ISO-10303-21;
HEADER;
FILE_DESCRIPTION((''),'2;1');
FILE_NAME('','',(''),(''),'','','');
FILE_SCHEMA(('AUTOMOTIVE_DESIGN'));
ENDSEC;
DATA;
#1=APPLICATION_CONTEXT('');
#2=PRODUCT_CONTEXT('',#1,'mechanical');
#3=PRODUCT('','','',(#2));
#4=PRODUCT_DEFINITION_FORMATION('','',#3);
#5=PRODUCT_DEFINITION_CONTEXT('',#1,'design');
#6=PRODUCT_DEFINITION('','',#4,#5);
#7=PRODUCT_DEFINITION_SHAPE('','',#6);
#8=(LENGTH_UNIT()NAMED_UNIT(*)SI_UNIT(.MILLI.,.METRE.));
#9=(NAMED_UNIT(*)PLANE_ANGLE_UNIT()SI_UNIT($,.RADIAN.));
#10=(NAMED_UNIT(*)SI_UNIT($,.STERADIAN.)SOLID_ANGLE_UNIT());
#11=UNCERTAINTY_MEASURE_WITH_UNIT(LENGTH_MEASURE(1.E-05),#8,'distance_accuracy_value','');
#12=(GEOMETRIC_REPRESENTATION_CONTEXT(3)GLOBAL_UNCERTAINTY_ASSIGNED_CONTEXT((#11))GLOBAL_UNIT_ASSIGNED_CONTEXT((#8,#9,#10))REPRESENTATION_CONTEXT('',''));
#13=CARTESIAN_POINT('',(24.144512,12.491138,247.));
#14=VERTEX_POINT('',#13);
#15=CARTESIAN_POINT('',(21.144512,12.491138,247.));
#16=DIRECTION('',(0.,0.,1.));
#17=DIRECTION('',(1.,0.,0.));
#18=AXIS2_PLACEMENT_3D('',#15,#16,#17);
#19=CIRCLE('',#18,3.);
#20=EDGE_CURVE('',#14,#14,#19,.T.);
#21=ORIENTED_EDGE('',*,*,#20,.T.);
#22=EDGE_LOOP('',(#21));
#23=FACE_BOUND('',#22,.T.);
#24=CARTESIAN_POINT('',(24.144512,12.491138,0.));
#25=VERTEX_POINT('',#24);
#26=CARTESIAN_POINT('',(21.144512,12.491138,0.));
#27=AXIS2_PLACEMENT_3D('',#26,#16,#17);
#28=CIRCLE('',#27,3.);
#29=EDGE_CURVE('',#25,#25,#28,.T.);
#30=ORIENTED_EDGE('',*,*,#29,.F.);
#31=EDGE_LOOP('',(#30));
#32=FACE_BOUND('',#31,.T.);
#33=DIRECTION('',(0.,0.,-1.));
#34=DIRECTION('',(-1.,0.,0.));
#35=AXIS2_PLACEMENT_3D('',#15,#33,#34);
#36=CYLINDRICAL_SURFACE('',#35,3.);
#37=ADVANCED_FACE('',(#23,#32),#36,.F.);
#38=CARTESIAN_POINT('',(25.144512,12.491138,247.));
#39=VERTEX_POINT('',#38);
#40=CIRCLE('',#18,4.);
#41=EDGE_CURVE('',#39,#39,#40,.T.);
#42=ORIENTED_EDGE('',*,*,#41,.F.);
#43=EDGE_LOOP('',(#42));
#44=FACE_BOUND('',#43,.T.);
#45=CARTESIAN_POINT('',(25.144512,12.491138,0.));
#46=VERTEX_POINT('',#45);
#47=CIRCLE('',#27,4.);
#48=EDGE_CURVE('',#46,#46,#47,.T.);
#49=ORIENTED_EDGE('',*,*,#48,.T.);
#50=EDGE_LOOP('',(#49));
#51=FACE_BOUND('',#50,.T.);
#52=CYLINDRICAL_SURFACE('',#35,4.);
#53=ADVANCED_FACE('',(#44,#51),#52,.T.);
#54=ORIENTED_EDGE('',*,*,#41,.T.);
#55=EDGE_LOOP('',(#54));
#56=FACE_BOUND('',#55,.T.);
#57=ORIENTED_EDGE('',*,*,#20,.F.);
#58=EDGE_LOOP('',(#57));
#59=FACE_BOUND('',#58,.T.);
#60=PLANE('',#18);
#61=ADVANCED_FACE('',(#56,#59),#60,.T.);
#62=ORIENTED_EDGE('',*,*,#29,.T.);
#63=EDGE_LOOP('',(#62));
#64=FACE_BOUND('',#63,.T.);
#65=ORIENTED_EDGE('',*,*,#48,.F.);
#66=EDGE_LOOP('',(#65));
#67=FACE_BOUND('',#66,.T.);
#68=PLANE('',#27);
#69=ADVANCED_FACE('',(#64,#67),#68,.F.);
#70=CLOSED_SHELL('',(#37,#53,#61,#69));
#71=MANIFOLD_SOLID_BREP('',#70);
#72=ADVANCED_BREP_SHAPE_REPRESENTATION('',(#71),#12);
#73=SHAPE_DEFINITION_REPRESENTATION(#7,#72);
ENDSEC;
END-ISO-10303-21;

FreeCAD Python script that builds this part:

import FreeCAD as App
import Part
import Sketcher

V = App.Vector
Q = App.Units.Quantity

doc = App.newDocument("Part")
body = doc.addObject("PartDesign::Body", "Body")

# Sketch on XY plane
sketch1 = doc.addObject("Sketcher::SketchObject", "Sketch")
body.addObject(sketch1)
sketch1.AttachmentSupport = (doc.XY_Plane, [""])
sketch1.MapMode = "FlatFace"
sketch1.addGeometry([
    Part.Circle(V(21.1, 12.5, 0), V(0, 0, 1), 4),
    Part.Circle(V(21.1, 12.5, 0), V(0, 0, 1), 3),
], False)
sketch1.addConstraint([
    Sketcher.Constraint("Coincident", 1, 3, 0, 3),
    Sketcher.Constraint("Diameter", 0, Q("8 mm")),
    Sketcher.Constraint("Diameter", 1, Q("6 mm")),
    Sketcher.Constraint("DistanceX", -1, 1, 0, 3, Q("21.144512 mm")),
    Sketcher.Constraint("DistanceY", -1, 1, 0, 3, Q("12.491138 mm")),
])
pad1 = doc.addObject("PartDesign::Pad", "Pad")
body.addObject(pad1)
pad1.Profile = sketch1
pad1.Length = 247

doc.recompute()
